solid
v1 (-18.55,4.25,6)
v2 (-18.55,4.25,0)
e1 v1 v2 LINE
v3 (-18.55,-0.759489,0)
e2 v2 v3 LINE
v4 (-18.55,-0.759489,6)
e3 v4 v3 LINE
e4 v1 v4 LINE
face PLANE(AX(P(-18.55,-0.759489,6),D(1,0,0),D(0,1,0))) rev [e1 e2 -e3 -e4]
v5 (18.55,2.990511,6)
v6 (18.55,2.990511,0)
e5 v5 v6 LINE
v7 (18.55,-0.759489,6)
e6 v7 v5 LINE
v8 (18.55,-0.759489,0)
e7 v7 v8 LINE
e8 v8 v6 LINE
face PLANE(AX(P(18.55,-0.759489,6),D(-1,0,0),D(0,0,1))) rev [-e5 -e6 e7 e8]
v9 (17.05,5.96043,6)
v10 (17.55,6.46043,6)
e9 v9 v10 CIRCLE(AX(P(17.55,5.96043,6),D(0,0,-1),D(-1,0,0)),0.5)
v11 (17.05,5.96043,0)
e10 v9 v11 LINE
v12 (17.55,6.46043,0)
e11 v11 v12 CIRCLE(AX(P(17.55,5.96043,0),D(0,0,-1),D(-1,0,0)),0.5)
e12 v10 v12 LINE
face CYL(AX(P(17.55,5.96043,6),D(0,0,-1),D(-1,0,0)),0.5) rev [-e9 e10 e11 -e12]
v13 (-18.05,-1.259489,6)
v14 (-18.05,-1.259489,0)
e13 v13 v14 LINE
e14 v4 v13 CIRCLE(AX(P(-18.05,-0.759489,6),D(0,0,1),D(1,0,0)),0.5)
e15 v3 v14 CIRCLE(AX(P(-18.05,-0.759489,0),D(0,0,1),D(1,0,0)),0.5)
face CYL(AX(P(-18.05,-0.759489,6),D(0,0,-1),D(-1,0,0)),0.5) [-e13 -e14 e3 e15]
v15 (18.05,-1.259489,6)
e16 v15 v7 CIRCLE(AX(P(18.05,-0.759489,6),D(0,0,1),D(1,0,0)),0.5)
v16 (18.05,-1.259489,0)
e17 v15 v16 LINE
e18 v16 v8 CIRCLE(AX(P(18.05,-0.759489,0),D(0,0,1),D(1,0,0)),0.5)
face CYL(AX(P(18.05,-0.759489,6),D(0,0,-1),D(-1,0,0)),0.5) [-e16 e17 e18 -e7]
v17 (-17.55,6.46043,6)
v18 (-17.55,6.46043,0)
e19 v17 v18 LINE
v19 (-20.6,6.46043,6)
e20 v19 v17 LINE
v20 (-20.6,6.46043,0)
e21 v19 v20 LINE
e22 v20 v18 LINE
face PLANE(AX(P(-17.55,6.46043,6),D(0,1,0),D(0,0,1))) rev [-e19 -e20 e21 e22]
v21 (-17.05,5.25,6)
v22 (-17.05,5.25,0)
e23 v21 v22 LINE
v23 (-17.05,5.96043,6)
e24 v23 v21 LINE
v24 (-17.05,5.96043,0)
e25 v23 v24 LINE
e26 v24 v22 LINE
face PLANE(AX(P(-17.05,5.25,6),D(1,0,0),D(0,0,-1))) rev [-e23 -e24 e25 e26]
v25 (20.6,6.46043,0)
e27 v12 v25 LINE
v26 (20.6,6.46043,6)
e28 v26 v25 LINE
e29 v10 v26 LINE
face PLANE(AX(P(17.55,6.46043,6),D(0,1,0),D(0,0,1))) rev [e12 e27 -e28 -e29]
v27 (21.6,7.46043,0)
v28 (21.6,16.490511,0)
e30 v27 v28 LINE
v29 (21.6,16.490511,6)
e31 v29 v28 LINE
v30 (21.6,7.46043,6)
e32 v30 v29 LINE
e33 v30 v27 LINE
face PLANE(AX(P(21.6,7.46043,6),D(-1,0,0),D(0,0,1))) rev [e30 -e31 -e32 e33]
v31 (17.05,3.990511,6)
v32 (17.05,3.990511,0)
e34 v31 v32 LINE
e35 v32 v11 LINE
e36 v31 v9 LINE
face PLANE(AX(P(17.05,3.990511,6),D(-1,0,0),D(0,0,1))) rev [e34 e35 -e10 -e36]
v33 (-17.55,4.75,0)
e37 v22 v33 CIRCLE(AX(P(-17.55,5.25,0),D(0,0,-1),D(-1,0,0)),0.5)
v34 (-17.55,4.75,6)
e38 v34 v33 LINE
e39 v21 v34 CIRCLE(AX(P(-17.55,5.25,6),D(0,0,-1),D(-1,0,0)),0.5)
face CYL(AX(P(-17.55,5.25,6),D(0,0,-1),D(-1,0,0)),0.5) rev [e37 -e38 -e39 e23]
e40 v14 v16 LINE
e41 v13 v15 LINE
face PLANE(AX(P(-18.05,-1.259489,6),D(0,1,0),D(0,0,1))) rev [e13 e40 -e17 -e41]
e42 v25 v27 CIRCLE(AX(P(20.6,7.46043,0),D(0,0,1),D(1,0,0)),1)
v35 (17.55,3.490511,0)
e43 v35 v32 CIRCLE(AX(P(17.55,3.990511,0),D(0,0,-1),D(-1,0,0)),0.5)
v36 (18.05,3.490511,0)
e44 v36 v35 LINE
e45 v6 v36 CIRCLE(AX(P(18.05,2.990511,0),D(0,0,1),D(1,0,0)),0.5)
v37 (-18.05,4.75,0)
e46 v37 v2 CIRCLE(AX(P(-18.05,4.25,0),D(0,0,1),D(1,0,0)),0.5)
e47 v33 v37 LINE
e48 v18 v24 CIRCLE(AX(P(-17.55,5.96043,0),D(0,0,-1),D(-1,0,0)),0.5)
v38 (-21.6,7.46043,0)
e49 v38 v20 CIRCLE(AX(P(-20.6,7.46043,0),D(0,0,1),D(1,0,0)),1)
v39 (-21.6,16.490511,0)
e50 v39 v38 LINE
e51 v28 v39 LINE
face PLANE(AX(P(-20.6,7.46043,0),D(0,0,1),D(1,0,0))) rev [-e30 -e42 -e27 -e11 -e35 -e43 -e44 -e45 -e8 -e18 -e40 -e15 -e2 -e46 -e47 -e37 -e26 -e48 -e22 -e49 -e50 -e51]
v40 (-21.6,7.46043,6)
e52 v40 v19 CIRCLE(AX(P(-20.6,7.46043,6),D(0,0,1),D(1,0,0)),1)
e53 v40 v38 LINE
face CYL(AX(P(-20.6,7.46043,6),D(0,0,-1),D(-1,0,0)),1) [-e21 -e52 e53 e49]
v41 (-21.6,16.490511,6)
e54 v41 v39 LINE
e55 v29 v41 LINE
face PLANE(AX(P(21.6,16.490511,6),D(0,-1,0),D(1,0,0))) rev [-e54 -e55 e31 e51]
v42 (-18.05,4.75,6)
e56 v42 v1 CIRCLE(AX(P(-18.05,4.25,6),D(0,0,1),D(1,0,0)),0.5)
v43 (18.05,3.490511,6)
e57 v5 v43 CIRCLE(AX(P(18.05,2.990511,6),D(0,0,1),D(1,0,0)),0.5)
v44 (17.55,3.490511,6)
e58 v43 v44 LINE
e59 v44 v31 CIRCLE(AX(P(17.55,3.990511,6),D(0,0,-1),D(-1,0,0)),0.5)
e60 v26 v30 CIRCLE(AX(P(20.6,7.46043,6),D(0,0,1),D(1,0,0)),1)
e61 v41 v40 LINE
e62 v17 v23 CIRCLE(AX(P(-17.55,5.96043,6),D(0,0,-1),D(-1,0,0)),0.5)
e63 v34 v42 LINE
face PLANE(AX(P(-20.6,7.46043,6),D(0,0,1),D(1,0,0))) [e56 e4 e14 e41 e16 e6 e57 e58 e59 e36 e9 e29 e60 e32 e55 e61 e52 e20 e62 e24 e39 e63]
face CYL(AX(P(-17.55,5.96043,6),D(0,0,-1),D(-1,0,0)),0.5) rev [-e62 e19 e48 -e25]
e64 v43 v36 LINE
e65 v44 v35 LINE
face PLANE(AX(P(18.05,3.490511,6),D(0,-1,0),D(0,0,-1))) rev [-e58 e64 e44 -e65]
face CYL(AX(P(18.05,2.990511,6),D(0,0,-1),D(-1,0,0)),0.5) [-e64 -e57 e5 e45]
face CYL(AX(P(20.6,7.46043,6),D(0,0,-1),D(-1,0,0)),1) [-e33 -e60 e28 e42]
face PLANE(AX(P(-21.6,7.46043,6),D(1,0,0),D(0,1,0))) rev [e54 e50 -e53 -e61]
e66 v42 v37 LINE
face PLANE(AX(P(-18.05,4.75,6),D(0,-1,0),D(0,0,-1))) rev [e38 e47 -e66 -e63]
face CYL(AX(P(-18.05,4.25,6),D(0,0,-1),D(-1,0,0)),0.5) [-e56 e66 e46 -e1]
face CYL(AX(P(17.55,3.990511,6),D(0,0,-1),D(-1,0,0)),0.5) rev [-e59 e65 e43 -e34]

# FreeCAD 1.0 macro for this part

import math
import FreeCAD as App
import Part
import Sketcher

V = App.Vector

doc = App.newDocument("Part")
params = doc.addObject("Spreadsheet::Sheet", "Params")
for row, (alias, value) in enumerate([
    ("sketch1_radius", "1 mm"),
    ("sketch1_radius2", "0.5 mm"),
    ("sketch1_width", "36.1 mm"),
    ("sketch1_width2", "0.5 mm"),
    ("sketch1_width3", "43.2 mm"),
    ("pad1_length", "6 mm"),
], start=1):
    params.set(f"A{row}", alias)
    params.set(f"B{row}", "=" + value)
    params.setAlias(f"B{row}", alias)

body = doc.addObject("PartDesign::Body", "Body")

# Sketch on XY plane
sketch1 = body.newObject("Sketcher::SketchObject", "Sketch")
sketch1.AttachmentSupport = (doc.getObject("XY_Plane"), [""])
sketch1.MapMode = "FlatFace"
sketch1.addGeometry([
    Part.LineSegment(V(-18.05, -1.259489, 0), V(18.05, -1.259489, 0)),  # 0
    Part.ArcOfCircle(Part.Circle(V(18.05, -0.759489, 0), V(0, 0, 1), 0.5), math.radians(-90), math.radians(0)),  # 1
    Part.LineSegment(V(18.55, -0.759489, 0), V(18.55, 2.990511, 0)),  # 2
    Part.ArcOfCircle(Part.Circle(V(18.05, 2.990511, 0), V(0, 0, 1), 0.5), math.radians(0), math.radians(90)),  # 3
    Part.LineSegment(V(18.05, 3.490511, 0), V(17.55, 3.490511, 0)),  # 4
    Part.ArcOfCircle(Part.Circle(V(17.55, 3.990511, 0), V(0, 0, 1), 0.5), math.radians(180), math.radians(270)),  # 5
    Part.LineSegment(V(17.05, 3.990511, 0), V(17.05, 5.96043, 0)),  # 6
    Part.ArcOfCircle(Part.Circle(V(17.55, 5.96043, 0), V(0, 0, 1), 0.5), math.radians(90), math.radians(180)),  # 7
    Part.LineSegment(V(17.55, 6.46043, 0), V(20.6, 6.46043, 0)),  # 8
    Part.ArcOfCircle(Part.Circle(V(20.6, 7.46043, 0), V(0, 0, 1), 1), math.radians(-90), math.radians(0)),  # 9
    Part.LineSegment(V(21.6, 7.46043, 0), V(21.6, 16.490511, 0)),  # 10
    Part.LineSegment(V(21.6, 16.490511, 0), V(-21.6, 16.490511, 0)),  # 11
    Part.LineSegment(V(-21.6, 16.490511, 0), V(-21.6, 7.46043, 0)),  # 12
    Part.ArcOfCircle(Part.Circle(V(-20.6, 7.46043, 0), V(0, 0, 1), 1), math.radians(180), math.radians(270)),  # 13
    Part.LineSegment(V(-20.6, 6.46043, 0), V(-17.55, 6.46043, 0)),  # 14
    Part.ArcOfCircle(Part.Circle(V(-17.55, 5.96043, 0), V(0, 0, 1), 0.5), math.radians(0), math.radians(90)),  # 15
    Part.LineSegment(V(-17.05, 5.96043, 0), V(-17.05, 5.25, 0)),  # 16
    Part.ArcOfCircle(Part.Circle(V(-17.55, 5.25, 0), V(0, 0, 1), 0.5), math.radians(-90), math.radians(0)),  # 17
    Part.LineSegment(V(-17.55, 4.75, 0), V(-18.05, 4.75, 0)),  # 18
    Part.ArcOfCircle(Part.Circle(V(-18.05, 4.25, 0), V(0, 0, 1), 0.5), math.radians(90), math.radians(180)),  # 19
    Part.LineSegment(V(-18.55, 4.25, 0), V(-18.55, -0.759489, 0)),  # 20
    Part.ArcOfCircle(Part.Circle(V(-18.05, -0.759489, 0), V(0, 0, 1), 0.5), math.radians(180), math.radians(270)),  # 21
], False)
sketch1.addConstraint([
    Sketcher.Constraint("Tangent", 0, 2, 1, 1),
    Sketcher.Constraint("Tangent", 1, 2, 2, 1),
    Sketcher.Constraint("Tangent", 2, 2, 3, 1),
    Sketcher.Constraint("Tangent", 3, 2, 4, 1),
    Sketcher.Constraint("Tangent", 4, 2, 5, 2),
    Sketcher.Constraint("Tangent", 5, 1, 6, 1),
    Sketcher.Constraint("Tangent", 6, 2, 7, 2),
    Sketcher.Constraint("Tangent", 7, 1, 8, 1),
    Sketcher.Constraint("Tangent", 8, 2, 9, 1),
    Sketcher.Constraint("Tangent", 9, 2, 10, 1),
    Sketcher.Constraint("Coincident", 10, 2, 11, 1),
    Sketcher.Constraint("Coincident", 11, 2, 12, 1),
    Sketcher.Constraint("Tangent", 12, 2, 13, 1),
    Sketcher.Constraint("Tangent", 13, 2, 14, 1),
    Sketcher.Constraint("Tangent", 14, 2, 15, 2),
    Sketcher.Constraint("Tangent", 15, 1, 16, 1),
    Sketcher.Constraint("Tangent", 16, 2, 17, 2),
    Sketcher.Constraint("Tangent", 17, 1, 18, 1),
    Sketcher.Constraint("Tangent", 18, 2, 19, 1),
    Sketcher.Constraint("Tangent", 19, 2, 20, 1),
    Sketcher.Constraint("Tangent", 20, 2, 21, 1),
    Sketcher.Constraint("Tangent", 21, 2, 0, 1),
    Sketcher.Constraint("Horizontal", 0),
    Sketcher.Constraint("Vertical", 2),
    Sketcher.Constraint("Horizontal", 4),
    Sketcher.Constraint("Vertical", 6),
    Sketcher.Constraint("Horizontal", 8),
    Sketcher.Constraint("Vertical", 10),
    Sketcher.Constraint("Horizontal", 11),
    Sketcher.Constraint("Vertical", 12),
    Sketcher.Constraint("Horizontal", 14),
    Sketcher.Constraint("Vertical", 16),
    Sketcher.Constraint("Horizontal", 18),
    Sketcher.Constraint("Vertical", 20),
    Sketcher.Constraint("Equal", 1, 3),
    Sketcher.Constraint("Equal", 3, 5),
    Sketcher.Constraint("Equal", 5, 7),
    Sketcher.Constraint("Equal", 9, 13),
    Sketcher.Constraint("Equal", 7, 15),
    Sketcher.Constraint("Equal", 15, 17),
    Sketcher.Constraint("Equal", 17, 19),
    Sketcher.Constraint("Equal", 19, 21),
    Sketcher.Constraint("Symmetric", 9, 3, 13, 3, -2),
    Sketcher.Constraint("Equal", 8, 14),
    Sketcher.Constraint("Equal", 4, 18),
    Sketcher.Constraint("Radius", 9, 1.0),
    Sketcher.Constraint("Radius", 1, 0.5),
    Sketcher.Constraint("DistanceX", 0, 1, 0, 2, 36.1),
    Sketcher.Constraint("DistanceX", 4, 2, 4, 1, 0.5),
    Sketcher.Constraint("DistanceX", 11, 2, 11, 1, 43.2),
    Sketcher.Constraint("DistanceY", 2, 1, 2, 2, 3.75),
    Sketcher.Constraint("DistanceY", -1, 1, 17, 3, 5.25),
    Sketcher.Constraint("DistanceY", 21, 3, 11, 2, 17.25),
    Sketcher.Constraint("DistanceY", 6, 1, 6, 2, 1.969918),
    Sketcher.Constraint("DistanceY", 16, 2, 16, 1, 0.71043),
])
sketch1.setExpression("Constraints[45]", "Params.sketch1_radius")
sketch1.setExpression("Constraints[46]", "Params.sketch1_radius2")
sketch1.setExpression("Constraints[47]", "Params.sketch1_width")
sketch1.setExpression("Constraints[48]", "Params.sketch1_width2")
sketch1.setExpression("Constraints[49]", "Params.sketch1_width3")
pad1 = body.newObject("PartDesign::Pad", "Pad")
pad1.Profile = sketch1
pad1.setExpression("Length", "Params.pad1_length")

doc.recompute()
